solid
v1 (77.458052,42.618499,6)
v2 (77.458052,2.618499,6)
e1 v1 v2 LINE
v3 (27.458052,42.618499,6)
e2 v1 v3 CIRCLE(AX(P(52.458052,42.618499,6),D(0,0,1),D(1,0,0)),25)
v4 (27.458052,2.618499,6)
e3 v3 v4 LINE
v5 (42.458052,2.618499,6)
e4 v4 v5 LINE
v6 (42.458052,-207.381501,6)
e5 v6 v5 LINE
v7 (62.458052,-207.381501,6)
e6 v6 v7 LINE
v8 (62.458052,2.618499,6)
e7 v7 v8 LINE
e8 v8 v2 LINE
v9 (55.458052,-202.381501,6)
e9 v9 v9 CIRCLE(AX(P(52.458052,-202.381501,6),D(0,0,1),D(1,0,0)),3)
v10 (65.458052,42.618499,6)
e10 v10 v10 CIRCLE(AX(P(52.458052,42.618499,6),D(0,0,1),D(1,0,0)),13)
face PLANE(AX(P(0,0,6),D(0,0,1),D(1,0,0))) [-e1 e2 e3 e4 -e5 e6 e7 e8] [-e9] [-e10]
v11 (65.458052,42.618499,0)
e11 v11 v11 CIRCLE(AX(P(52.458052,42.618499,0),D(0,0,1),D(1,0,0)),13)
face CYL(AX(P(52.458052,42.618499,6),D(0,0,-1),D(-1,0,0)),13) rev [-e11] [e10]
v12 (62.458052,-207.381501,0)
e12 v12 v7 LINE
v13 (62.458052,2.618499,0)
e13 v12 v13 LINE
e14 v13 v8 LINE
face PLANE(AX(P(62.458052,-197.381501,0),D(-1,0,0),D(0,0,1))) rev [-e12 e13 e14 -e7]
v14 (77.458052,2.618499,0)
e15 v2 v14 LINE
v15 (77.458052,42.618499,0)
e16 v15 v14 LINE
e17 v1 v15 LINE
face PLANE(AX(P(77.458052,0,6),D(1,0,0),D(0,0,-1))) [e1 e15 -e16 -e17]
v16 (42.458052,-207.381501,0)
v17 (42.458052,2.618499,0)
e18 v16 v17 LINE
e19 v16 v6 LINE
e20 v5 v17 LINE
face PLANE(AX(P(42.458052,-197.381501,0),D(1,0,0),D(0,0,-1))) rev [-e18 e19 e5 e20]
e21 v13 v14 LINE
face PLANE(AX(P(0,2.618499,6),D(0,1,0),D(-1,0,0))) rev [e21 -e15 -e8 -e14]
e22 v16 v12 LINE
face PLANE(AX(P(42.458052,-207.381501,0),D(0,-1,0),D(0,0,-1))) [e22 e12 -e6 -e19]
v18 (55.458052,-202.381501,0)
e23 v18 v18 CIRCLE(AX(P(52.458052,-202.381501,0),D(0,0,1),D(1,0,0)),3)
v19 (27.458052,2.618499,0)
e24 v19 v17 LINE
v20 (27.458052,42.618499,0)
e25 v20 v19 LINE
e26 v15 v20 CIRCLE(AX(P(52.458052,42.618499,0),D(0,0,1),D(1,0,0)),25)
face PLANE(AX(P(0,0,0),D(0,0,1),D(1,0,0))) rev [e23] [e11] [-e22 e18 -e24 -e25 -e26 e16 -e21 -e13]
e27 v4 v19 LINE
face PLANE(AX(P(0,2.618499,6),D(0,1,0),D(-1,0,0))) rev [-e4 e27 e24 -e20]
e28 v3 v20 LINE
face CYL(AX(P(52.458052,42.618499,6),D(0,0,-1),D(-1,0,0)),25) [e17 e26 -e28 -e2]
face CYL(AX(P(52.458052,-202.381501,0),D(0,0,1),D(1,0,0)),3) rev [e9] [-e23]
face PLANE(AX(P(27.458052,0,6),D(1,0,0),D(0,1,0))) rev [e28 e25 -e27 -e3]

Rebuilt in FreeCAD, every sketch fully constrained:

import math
import FreeCAD as App
import Part
import Sketcher
Q = App.Units.Quantity


def add_polygon(sketch, points):
    """Adds a closed chain of lines whose ends are joined by coincident constraints."""
    first, n = sketch.GeometryCount, len(points)
    for a, b in zip(points, points[1:] + points[:1]):
        sketch.addGeometry(Part.LineSegment(App.Vector(*a, 0), App.Vector(*b, 0)), False)
    for i in range(n):
        sketch.addConstraint(Sketcher.Constraint("Coincident", first + i, 2, first + (i + 1) % n, 1))

doc = App.newDocument("Part")
body = doc.addObject("PartDesign::Body", "Body")

# Sketch on XY plane
sketch1 = doc.addObject("Sketcher::SketchObject", "Sketch")
body.addObject(sketch1)
sketch1.AttachmentSupport = (doc.XY_Plane, [""])
sketch1.MapMode = "FlatFace"
sketch1.addGeometry(Part.LineSegment(App.Vector(77.458052, 2.618499, 0), App.Vector(77.458052, 42.618499, 0)), False)
sketch1.addGeometry(Part.ArcOfCircle(Part.Circle(App.Vector(52.458052, 42.618499, 0), App.Vector(0, 0, 1), 25), math.radians(0), math.radians(180)), False)
sketch1.addGeometry(Part.LineSegment(App.Vector(27.458052, 42.618499, 0), App.Vector(27.458052, 2.618499, 0)), False)
sketch1.addGeometry(Part.LineSegment(App.Vector(27.458052, 2.618499, 0), App.Vector(77.458052, 2.618499, 0)), False)
sketch1.addGeometry(Part.Circle(App.Vector(52.458052, 42.618499, 0), App.Vector(0, 0, 1), 13), False)
sketch1.addConstraint(Sketcher.Constraint("Tangent", 0, 2, 1, 1))
sketch1.addConstraint(Sketcher.Constraint("Tangent", 1, 2, 2, 1))
sketch1.addConstraint(Sketcher.Constraint("Coincident", 2, 2, 3, 1))
sketch1.addConstraint(Sketcher.Constraint("Coincident", 3, 2, 0, 1))
sketch1.addConstraint(Sketcher.Constraint("Vertical", 0))
sketch1.addConstraint(Sketcher.Constraint("Vertical", 2))
sketch1.addConstraint(Sketcher.Constraint("Horizontal", 3))
sketch1.addConstraint(Sketcher.Constraint("Coincident", 4, 3, 1, 3))
sketch1.addConstraint(Sketcher.Constraint("Diameter", 4, Q("26 mm")))
sketch1.addConstraint(Sketcher.Constraint("Radius", 1, Q("25 mm")))
sketch1.addConstraint(Sketcher.Constraint("DistanceY", 0, 1, 0, 2, Q("40 mm")))
sketch1.addConstraint(Sketcher.Constraint("DistanceY", -1, 1, 1, 3, Q("42.618499 mm")))
sketch1.addConstraint(Sketcher.Constraint("DistanceX", -1, 1, 1, 3, Q("52.458052 mm")))
pad1 = doc.addObject("PartDesign::Pad", "Pad")
body.addObject(pad1)
pad1.Profile = sketch1
pad1.Length = 6

# Sketch on XZ plane
sketch2 = doc.addObject("Sketcher::SketchObject", "Sketch001")
body.addObject(sketch2)
sketch2.AttachmentSupport = (doc.XZ_Plane, [""])
sketch2.MapMode = "FlatFace"
sketch2.AttachmentOffset = App.Placement(App.Vector(0, 0, -2.618499), App.Rotation())
add_polygon(sketch2, [(42.458052, 6), (42.458052, 0), (62.458052, 0), (62.458052, 6)])  # lines 0-3
sketch2.addConstraint(Sketcher.Constraint("Vertical", 0))
sketch2.addConstraint(Sketcher.Constraint("Horizontal", 1))
sketch2.addConstraint(Sketcher.Constraint("Vertical", 2))
sketch2.addConstraint(Sketcher.Constraint("Horizontal", 3))
sketch2.addConstraint(Sketcher.Constraint("PointOnObject", 0, 2, -1))
sketch2.addConstraint(Sketcher.Constraint("DistanceX", 1, 1, 1, 2, Q("20 mm")))
sketch2.addConstraint(Sketcher.Constraint("DistanceY", 0, 2, 0, 1, Q("6 mm")))
sketch2.addConstraint(Sketcher.Constraint("DistanceX", -1, 1, 0, 2, Q("42.458052 mm")))
pad2 = doc.addObject("PartDesign::Pad", "Pad001")
body.addObject(pad2)
pad2.Profile = sketch2
pad2.Length = 200

# Sketch on XY plane
sketch3 = doc.addObject("Sketcher::SketchObject", "Sketch002")
body.addObject(sketch3)
sketch3.AttachmentSupport = (doc.XY_Plane, [""])
sketch3.MapMode = "FlatFace"
sketch3.AttachmentOffset = App.Placement(App.Vector(0, 0, 6), App.Rotation())
add_polygon(sketch3, [(42.458052, -197.381501), (42.458052, -207.381501), (62.458052, -207.381501), (62.458052, -197.381501)])  # lines 0-3
sketch3.addGeometry(Part.Circle(App.Vector(52.458052, -202.381501, 0), App.Vector(0, 0, 1), 3), False)  # 4
sketch3.addConstraint(Sketcher.Constraint("Vertical", 0))
sketch3.addConstraint(Sketcher.Constraint("Horizontal", 1))
sketch3.addConstraint(Sketcher.Constraint("Vertical", 2))
sketch3.addConstraint(Sketcher.Constraint("Horizontal", 3))
sketch3.addConstraint(Sketcher.Constraint("Diameter", 4, Q("6 mm")))
sketch3.addConstraint(Sketcher.Constraint("DistanceX", 1, 1, 1, 2, Q("20 mm")))
sketch3.addConstraint(Sketcher.Constraint("DistanceY", 0, 2, 0, 1, Q("10 mm")))
sketch3.addConstraint(Sketcher.Constraint("DistanceX", 0, 2, 4, 3, Q("10 mm")))
sketch3.addConstraint(Sketcher.Constraint("DistanceY", 0, 2, 4, 3, Q("5 mm")))
sketch3.addConstraint(Sketcher.Constraint("DistanceY", 4, 3, -1, 1, Q("202.381501 mm")))
sketch3.addConstraint(Sketcher.Constraint("DistanceX", -1, 1, 4, 3, Q("52.458052 mm")))
pad3 = doc.addObject("PartDesign::Pad", "Pad002")
body.addObject(pad3)
pad3.Profile = sketch3
pad3.Length = 6
pad3.Reversed = True

doc.recompute()
